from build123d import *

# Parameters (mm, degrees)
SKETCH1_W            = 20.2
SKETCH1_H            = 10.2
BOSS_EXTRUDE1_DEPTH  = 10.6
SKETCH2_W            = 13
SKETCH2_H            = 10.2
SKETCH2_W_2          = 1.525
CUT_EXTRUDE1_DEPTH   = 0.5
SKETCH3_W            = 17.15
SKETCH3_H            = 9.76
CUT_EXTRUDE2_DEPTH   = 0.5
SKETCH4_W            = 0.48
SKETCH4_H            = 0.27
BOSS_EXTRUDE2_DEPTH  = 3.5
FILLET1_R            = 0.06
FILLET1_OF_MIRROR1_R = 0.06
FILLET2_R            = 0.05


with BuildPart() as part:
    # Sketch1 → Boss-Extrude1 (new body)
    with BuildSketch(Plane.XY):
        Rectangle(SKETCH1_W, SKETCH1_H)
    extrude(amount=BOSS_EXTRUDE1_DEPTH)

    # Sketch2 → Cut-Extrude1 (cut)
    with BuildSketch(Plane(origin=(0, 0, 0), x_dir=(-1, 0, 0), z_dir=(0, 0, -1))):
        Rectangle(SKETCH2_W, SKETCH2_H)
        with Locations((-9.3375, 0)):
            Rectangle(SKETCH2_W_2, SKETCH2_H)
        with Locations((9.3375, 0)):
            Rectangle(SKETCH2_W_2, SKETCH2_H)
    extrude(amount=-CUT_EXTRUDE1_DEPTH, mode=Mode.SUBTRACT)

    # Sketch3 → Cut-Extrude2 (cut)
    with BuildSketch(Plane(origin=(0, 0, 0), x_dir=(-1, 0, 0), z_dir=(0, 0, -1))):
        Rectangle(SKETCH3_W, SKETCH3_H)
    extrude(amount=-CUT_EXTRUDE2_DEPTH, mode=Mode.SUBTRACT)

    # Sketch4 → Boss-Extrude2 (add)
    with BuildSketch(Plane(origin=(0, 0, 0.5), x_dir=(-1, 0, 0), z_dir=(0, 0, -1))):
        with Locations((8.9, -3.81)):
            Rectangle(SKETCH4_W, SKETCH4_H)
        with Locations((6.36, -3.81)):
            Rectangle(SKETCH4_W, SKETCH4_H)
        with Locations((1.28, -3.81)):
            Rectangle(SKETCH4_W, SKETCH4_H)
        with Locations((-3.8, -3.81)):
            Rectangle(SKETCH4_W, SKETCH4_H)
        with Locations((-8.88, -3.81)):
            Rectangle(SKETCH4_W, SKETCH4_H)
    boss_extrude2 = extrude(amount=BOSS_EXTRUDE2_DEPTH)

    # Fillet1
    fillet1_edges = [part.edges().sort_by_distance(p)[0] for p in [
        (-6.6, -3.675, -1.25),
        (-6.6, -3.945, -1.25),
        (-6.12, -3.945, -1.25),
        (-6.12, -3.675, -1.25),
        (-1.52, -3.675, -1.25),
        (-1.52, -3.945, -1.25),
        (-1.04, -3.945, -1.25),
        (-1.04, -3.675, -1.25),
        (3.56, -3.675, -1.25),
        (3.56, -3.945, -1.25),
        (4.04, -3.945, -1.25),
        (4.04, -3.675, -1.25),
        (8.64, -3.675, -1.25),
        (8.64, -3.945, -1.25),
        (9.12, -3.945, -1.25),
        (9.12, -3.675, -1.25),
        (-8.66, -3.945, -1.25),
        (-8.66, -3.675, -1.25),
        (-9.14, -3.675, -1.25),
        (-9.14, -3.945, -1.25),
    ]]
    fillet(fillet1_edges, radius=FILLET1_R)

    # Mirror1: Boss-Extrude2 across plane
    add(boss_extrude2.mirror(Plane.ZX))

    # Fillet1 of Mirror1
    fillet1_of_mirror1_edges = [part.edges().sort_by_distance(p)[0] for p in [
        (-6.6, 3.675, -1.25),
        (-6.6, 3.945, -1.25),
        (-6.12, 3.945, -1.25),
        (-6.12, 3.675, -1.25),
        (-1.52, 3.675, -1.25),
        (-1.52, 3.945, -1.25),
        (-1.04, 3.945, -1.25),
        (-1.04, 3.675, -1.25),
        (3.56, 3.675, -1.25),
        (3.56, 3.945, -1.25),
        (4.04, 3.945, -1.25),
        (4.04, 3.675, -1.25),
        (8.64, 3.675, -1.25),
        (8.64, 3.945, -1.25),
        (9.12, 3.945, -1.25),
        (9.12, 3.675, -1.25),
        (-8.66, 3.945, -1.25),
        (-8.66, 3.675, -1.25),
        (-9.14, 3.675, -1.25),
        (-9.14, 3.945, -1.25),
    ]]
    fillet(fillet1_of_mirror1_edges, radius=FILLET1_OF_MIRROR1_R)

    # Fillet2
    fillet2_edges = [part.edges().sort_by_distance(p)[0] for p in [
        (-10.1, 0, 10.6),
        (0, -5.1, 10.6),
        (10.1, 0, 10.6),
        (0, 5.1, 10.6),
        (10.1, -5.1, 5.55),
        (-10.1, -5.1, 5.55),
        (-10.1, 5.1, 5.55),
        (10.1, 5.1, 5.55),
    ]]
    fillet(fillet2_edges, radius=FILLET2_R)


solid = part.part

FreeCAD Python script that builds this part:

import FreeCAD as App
import Part
import Sketcher

V = App.Vector
Q = App.Units.Quantity


def edges_at(feature, points):
    """Names of the edges that pass closest to the given points."""
    edges = feature.Shape.Edges
    near = lambda p: min(range(len(edges)), key=lambda i: edges[i].distToShape(Part.Vertex(*p))[0])
    return sorted({f"Edge{near(p) + 1}" for p in points})

doc = App.newDocument("Part")
body = doc.addObject("PartDesign::Body", "Body")

# Sketch on XY plane
sketch1 = body.newObject("Sketcher::SketchObject", "Sketch")
sketch1.AttachmentSupport = (doc.getObject("XY_Plane"), [""])
sketch1.MapMode = "FlatFace"
sketch1.addGeometry([
    Part.LineSegment(V(-10, 5, 0), V(-10, -5, 0)),
    Part.LineSegment(V(-10, -5, 0), V(10, -5, 0)),
    Part.LineSegment(V(10, -5, 0), V(10, 5, 0)),
    Part.LineSegment(V(10, 5, 0), V(-10, 5, 0)),
], False)
sketch1.addConstraint([
    Sketcher.Constraint("Coincident", 0, 2, 1, 1),
    Sketcher.Constraint("Coincident", 1, 2, 2, 1),
    Sketcher.Constraint("Coincident", 2, 2, 3, 1),
    Sketcher.Constraint("Coincident", 3, 2, 0, 1),
    Sketcher.Constraint("Vertical", 0),
    Sketcher.Constraint("Horizontal", 1),
    Sketcher.Constraint("Vertical", 2),
    Sketcher.Constraint("Horizontal", 3),
    Sketcher.Constraint("Symmetric", 0, 2, 2, 2, -1, 1),
    Sketcher.Constraint("DistanceX", 1, 1, 1, 2, Q("20.2 mm")),
    Sketcher.Constraint("DistanceY", 0, 2, 0, 1, Q("10.2 mm")),
])
pad1 = body.newObject("PartDesign::Pad", "Pad")
pad1.Profile = sketch1
pad1.Length = 10.6

# Sketch on XY plane
sketch2 = body.newObject("Sketcher::SketchObject", "Sketch001")
sketch2.AttachmentSupport = (doc.getObject("XY_Plane"), [""])
sketch2.MapMode = "FlatFace"
sketch2.addGeometry([
    Part.LineSegment(V(6.5, 5.1, 0), V(6.5, -5.1, 0)),  # 0
    Part.LineSegment(V(6.5, -5.1, 0), V(-6.5, -5.1, 0)),  # 1
    Part.LineSegment(V(-6.5, -5.1, 0), V(-6.5, 5.1, 0)),  # 2
    Part.LineSegment(V(-6.5, 5.1, 0), V(6.5, 5.1, 0)),  # 3
    Part.LineSegment(V(10.1, 5.1, 0), V(10.1, -5.1, 0)),  # 4
    Part.LineSegment(V(10.1, -5.1, 0), V(8.6, -5.1, 0)),  # 5
    Part.LineSegment(V(8.6, -5.1, 0), V(8.6, 5.1, 0)),  # 6
    Part.LineSegment(V(8.6, 5.1, 0), V(10.1, 5.1, 0)),  # 7
    Part.LineSegment(V(-8.6, 5.1, 0), V(-8.6, -5.1, 0)),  # 8
    Part.LineSegment(V(-8.6, -5.1, 0), V(-10.1, -5.1, 0)),  # 9
    Part.LineSegment(V(-10.1, -5.1, 0), V(-10.1, 5.1, 0)),  # 10
    Part.LineSegment(V(-10.1, 5.1, 0), V(-8.6, 5.1, 0)),  # 11
], False)
sketch2.addConstraint([
    Sketcher.Constraint("Coincident", 0, 2, 1, 1),
    Sketcher.Constraint("Coincident", 1, 2, 2, 1),
    Sketcher.Constraint("Coincident", 2, 2, 3, 1),
    Sketcher.Constraint("Coincident", 3, 2, 0, 1),
    Sketcher.Constraint("Coincident", 4, 2, 5, 1),
    Sketcher.Constraint("Coincident", 5, 2, 6, 1),
    Sketcher.Constraint("Coincident", 6, 2, 7, 1),
    Sketcher.Constraint("Coincident", 7, 2, 4, 1),
    Sketcher.Constraint("Coincident", 8, 2, 9, 1),
    Sketcher.Constraint("Coincident", 9, 2, 10, 1),
    Sketcher.Constraint("Coincident", 10, 2, 11, 1),
    Sketcher.Constraint("Coincident", 11, 2, 8, 1),
    Sketcher.Constraint("Vertical", 0),
    Sketcher.Constraint("Horizontal", 1),
    Sketcher.Constraint("Vertical", 2),
    Sketcher.Constraint("Horizontal", 3),
    Sketcher.Constraint("Vertical", 4),
    Sketcher.Constraint("Horizontal", 5),
    Sketcher.Constraint("Vertical", 6),
    Sketcher.Constraint("Horizontal", 7),
    Sketcher.Constraint("Vertical", 8),
    Sketcher.Constraint("Horizontal", 9),
    Sketcher.Constraint("Vertical", 10),
    Sketcher.Constraint("Horizontal", 11),
    Sketcher.Constraint("Symmetric", 0, 2, 2, 2, -1, 1),
    Sketcher.Constraint("Symmetric", 6, 2, 8, 2, -1, 1),
    Sketcher.Constraint("Symmetric", 4, 2, 10, 2, -1, 1),
    Sketcher.Constraint("Horizontal", 1, 2, 4, 2),
    Sketcher.Constraint("Horizontal", 3, 2, 6, 2),
    Sketcher.Constraint("DistanceX", 1, 2, 1, 1, Q("13 mm")),
    Sketcher.Constraint("DistanceY", 0, 2, 0, 1, Q("10.2 mm")),
    Sketcher.Constraint("DistanceX", -1, 1, 4, 2, Q("10.1 mm")),
    Sketcher.Constraint("DistanceX", 5, 2, 5, 1, Q("1.525 mm")),
])
pocket1 = body.newObject("PartDesign::Pocket", "Pocket")
pocket1.Profile = sketch2
pocket1.Length = 0.5
pocket1.Reversed = True

# Sketch on XY plane
sketch3 = body.newObject("Sketcher::SketchObject", "Sketch002")
sketch3.AttachmentSupport = (doc.getObject("XY_Plane"), [""])
sketch3.MapMode = "FlatFace"
sketch3.addGeometry([
    Part.LineSegment(V(9, 5, 0), V(9, -5, 0)),
    Part.LineSegment(V(9, -5, 0), V(-9, -5, 0)),
    Part.LineSegment(V(-9, -5, 0), V(-9, 5, 0)),
    Part.LineSegment(V(-9, 5, 0), V(9, 5, 0)),
], False)
sketch3.addConstraint([
    Sketcher.Constraint("Coincident", 0, 2, 1, 1),
    Sketcher.Constraint("Coincident", 1, 2, 2, 1),
    Sketcher.Constraint("Coincident", 2, 2, 3, 1),
    Sketcher.Constraint("Coincident", 3, 2, 0, 1),
    Sketcher.Constraint("Vertical", 0),
    Sketcher.Constraint("Horizontal", 1),
    Sketcher.Constraint("Vertical", 2),
    Sketcher.Constraint("Horizontal", 3),
    Sketcher.Constraint("Symmetric", 0, 2, 2, 2, -1, 1),
    Sketcher.Constraint("DistanceX", 1, 2, 1, 1, Q("17.15 mm")),
    Sketcher.Constraint("DistanceY", 0, 2, 0, 1, Q("9.76 mm")),
])
pocket2 = body.newObject("PartDesign::Pocket", "Pocket001")
pocket2.Profile = sketch3
pocket2.Length = 0.5
pocket2.Reversed = True

# Sketch on XY plane
sketch4 = body.newObject("Sketcher::SketchObject", "Sketch003")
sketch4.AttachmentSupport = (doc.getObject("XY_Plane"), [""])
sketch4.MapMode = "FlatFace"
sketch4.AttachmentOffset = App.Placement(V(0, 0, 0.5), App.Rotation())
sketch4.addGeometry([
    Part.LineSegment(V(-8.66, -3.67, 0), V(-8.66, -3.94, 0)),  # 0
    Part.LineSegment(V(-8.66, -3.94, 0), V(-9.14, -3.94, 0)),  # 1
    Part.LineSegment(V(-9.14, -3.94, 0), V(-9.14, -3.67, 0)),  # 2
    Part.LineSegment(V(-9.14, -3.67, 0), V(-8.66, -3.67, 0)),  # 3
    Part.LineSegment(V(-6.12, -3.67, 0), V(-6.12, -3.94, 0)),  # 4
    Part.LineSegment(V(-6.12, -3.94, 0), V(-6.6, -3.94, 0)),  # 5
    Part.LineSegment(V(-6.6, -3.94, 0), V(-6.6, -3.67, 0)),  # 6
    Part.LineSegment(V(-6.6, -3.67, 0), V(-6.12, -3.67, 0)),  # 7
    Part.LineSegment(V(-1.04, -3.67, 0), V(-1.04, -3.94, 0)),  # 8
    Part.LineSegment(V(-1.04, -3.94, 0), V(-1.52, -3.94, 0)),  # 9
    Part.LineSegment(V(-1.52, -3.94, 0), V(-1.52, -3.67, 0)),  # 10
    Part.LineSegment(V(-1.52, -3.67, 0), V(-1.04, -3.67, 0)),  # 11
    Part.LineSegment(V(4.04, -3.67, 0), V(4.04, -3.94, 0)),  # 12
    Part.LineSegment(V(4.04, -3.94, 0), V(3.56, -3.94, 0)),  # 13
    Part.LineSegment(V(3.56, -3.94, 0), V(3.56, -3.67, 0)),  # 14
    Part.LineSegment(V(3.56, -3.67, 0), V(4.04, -3.67, 0)),  # 15
    Part.LineSegment(V(9.12, -3.67, 0), V(9.12, -3.94, 0)),  # 16
    Part.LineSegment(V(9.12, -3.94, 0), V(8.64, -3.94, 0)),  # 17
    Part.LineSegment(V(8.64, -3.94, 0), V(8.64, -3.67, 0)),  # 18
    Part.LineSegment(V(8.64, -3.67, 0), V(9.12, -3.67, 0)),  # 19
], False)
sketch4.addConstraint([
    Sketcher.Constraint("Coincident", 0, 2, 1, 1),
    Sketcher.Constraint("Coincident", 1, 2, 2, 1),
    Sketcher.Constraint("Coincident", 2, 2, 3, 1),
    Sketcher.Constraint("Coincident", 3, 2, 0, 1),
    Sketcher.Constraint("Coincident", 4, 2, 5, 1),
    Sketcher.Constraint("Coincident", 5, 2, 6, 1),
    Sketcher.Constraint("Coincident", 6, 2, 7, 1),
    Sketcher.Constraint("Coincident", 7, 2, 4, 1),
    Sketcher.Constraint("Coincident", 8, 2, 9, 1),
    Sketcher.Constraint("Coincident", 9, 2, 10, 1),
    Sketcher.Constraint("Coincident", 10, 2, 11, 1),
    Sketcher.Constraint("Coincident", 11, 2, 8, 1),
    Sketcher.Constraint("Coincident", 12, 2, 13, 1),
    Sketcher.Constraint("Coincident", 13, 2, 14, 1),
    Sketcher.Constraint("Coincident", 14, 2, 15, 1),
    Sketcher.Constraint("Coincident", 15, 2, 12, 1),
    Sketcher.Constraint("Coincident", 16, 2, 17, 1),
    Sketcher.Constraint("Coincident", 17, 2, 18, 1),
    Sketcher.Constraint("Coincident", 18, 2, 19, 1),
    Sketcher.Constraint("Coincident", 19, 2, 16, 1),
    Sketcher.Constraint("Vertical", 0),
    Sketcher.Constraint("Horizontal", 1),
    Sketcher.Constraint("Vertical", 2),
    Sketcher.Constraint("Horizontal", 3),
    Sketcher.Constraint("Vertical", 4),
    Sketcher.Constraint("Horizontal", 5),
    Sketcher.Constraint("Vertical", 6),
    Sketcher.Constraint("Horizontal", 7),
    Sketcher.Constraint("Vertical", 8),
    Sketcher.Constraint("Horizontal", 9),
    Sketcher.Constraint("Vertical", 10),
    Sketcher.Constraint("Horizontal", 11),
    Sketcher.Constraint("Vertical", 12),
    Sketcher.Constraint("Horizontal", 13),
    Sketcher.Constraint("Vertical", 14),
    Sketcher.Constraint("Horizontal", 15),
    Sketcher.Constraint("Vertical", 16),
    Sketcher.Constraint("Horizontal", 17),
    Sketcher.Constraint("Vertical", 18),
    Sketcher.Constraint("Horizontal", 19),
    Sketcher.Constraint("Horizontal", 1, 2, 4, 2),
    Sketcher.Constraint("Horizontal", 3, 2, 6, 2),
    Sketcher.Constraint("Horizontal", 5, 2, 8, 2),
    Sketcher.Constraint("Horizontal", 7, 2, 10, 2),
    Sketcher.Constraint("Horizontal", 9, 2, 12, 2),
    Sketcher.Constraint("Horizontal", 11, 2, 14, 2),
    Sketcher.Constraint("Horizontal", 13, 2, 16, 2),
    Sketcher.Constraint("Horizontal", 15, 2, 18, 2),
    Sketcher.Constraint("Equal", 3, 5),
    Sketcher.Constraint("Equal", 7, 9),
    Sketcher.Constraint("Equal", 11, 13),
    Sketcher.Constraint("Equal", 15, 17),
    Sketcher.Constraint("DistanceX", 1, 2, 1, 1, Q("0.48 mm")),
    Sketcher.Constraint("DistanceY", 0, 2, 0, 1, Q("0.27 mm")),
    Sketcher.Constraint("DistanceX", 5, 2, -1, 1, Q("6.6 mm")),
    Sketcher.Constraint("DistanceX", 4, 2, 9, 2, Q("4.6 mm")),
    Sketcher.Constraint("DistanceX", 8, 2, 13, 2, Q("4.6 mm")),
    Sketcher.Constraint("DistanceX", 12, 2, 17, 2, Q("4.6 mm")),
    Sketcher.Constraint("DistanceX", 0, 2, -1, 1, Q("8.66 mm")),
    Sketcher.Constraint("DistanceY", 0, 2, -1, 1, Q("3.945 mm")),
])
pad2 = body.newObject("PartDesign::Pad", "Pad001")
pad2.Profile = sketch4
pad2.Length = 3.5
pad2.Reversed = True
doc.recompute()

fillet = body.newObject("PartDesign::Fillet", "Fillet")
fillet.Base = (pad2, edges_at(pad2, [
    (-6.6, -3.675, -1.25),
    (-6.6, -3.945, -1.25),
    (-6.12, -3.945, -1.25),
    (-6.12, -3.675, -1.25),
    (-1.52, -3.675, -1.25),
    (-1.52, -3.945, -1.25),
    (-1.04, -3.945, -1.25),
    (-1.04, -3.675, -1.25),
    (3.56, -3.675, -1.25),
    (3.56, -3.945, -1.25),
    (4.04, -3.945, -1.25),
    (4.04, -3.675, -1.25),
    (8.64, -3.675, -1.25),
    (8.64, -3.945, -1.25),
    (9.12, -3.945, -1.25),
    (9.12, -3.675, -1.25),
    (-8.66, -3.945, -1.25),
    (-8.66, -3.675, -1.25),
    (-9.14, -3.675, -1.25),
    (-9.14, -3.945, -1.25),
]))
fillet.Radius = 0.06
doc.recompute()

mirrored = body.newObject("PartDesign::Mirrored", "Mirrored")
mirrored.Originals = [pad2]
mirrored.MirrorPlane = (doc.getObject("XZ_Plane"), [""])
body.Tip = mirrored
doc.recompute()

fillet2 = body.newObject("PartDesign::Fillet", "Fillet001")
fillet2.Base = (mirrored, edges_at(mirrored, [
    (-6.6, 3.675, -1.25),
    (-6.6, 3.945, -1.25),
    (-6.12, 3.945, -1.25),
    (-6.12, 3.675, -1.25),
    (-1.52, 3.675, -1.25),
    (-1.52, 3.945, -1.25),
    (-1.04, 3.945, -1.25),
    (-1.04, 3.675, -1.25),
    (3.56, 3.675, -1.25),
    (3.56, 3.945, -1.25),
    (4.04, 3.945, -1.25),
    (4.04, 3.675, -1.25),
    (8.64, 3.675, -1.25),
    (8.64, 3.945, -1.25),
    (9.12, 3.945, -1.25),
    (9.12, 3.675, -1.25),
    (-8.66, 3.945, -1.25),
    (-8.66, 3.675, -1.25),
    (-9.14, 3.675, -1.25),
    (-9.14, 3.945, -1.25),
]))
fillet2.Radius = 0.06
doc.recompute()

fillet3 = body.newObject("PartDesign::Fillet", "Fillet002")
fillet3.Base = (fillet2, edges_at(fillet2, [
    (-10.1, 0, 10.6),
    (0, -5.1, 10.6),
    (10.1, 0, 10.6),
    (0, 5.1, 10.6),
    (10.1, -5.1, 5.55),
    (-10.1, -5.1, 5.55),
    (-10.1, 5.1, 5.55),
    (10.1, 5.1, 5.55),
]))
fillet3.Radius = 0.05

doc.recompute()
